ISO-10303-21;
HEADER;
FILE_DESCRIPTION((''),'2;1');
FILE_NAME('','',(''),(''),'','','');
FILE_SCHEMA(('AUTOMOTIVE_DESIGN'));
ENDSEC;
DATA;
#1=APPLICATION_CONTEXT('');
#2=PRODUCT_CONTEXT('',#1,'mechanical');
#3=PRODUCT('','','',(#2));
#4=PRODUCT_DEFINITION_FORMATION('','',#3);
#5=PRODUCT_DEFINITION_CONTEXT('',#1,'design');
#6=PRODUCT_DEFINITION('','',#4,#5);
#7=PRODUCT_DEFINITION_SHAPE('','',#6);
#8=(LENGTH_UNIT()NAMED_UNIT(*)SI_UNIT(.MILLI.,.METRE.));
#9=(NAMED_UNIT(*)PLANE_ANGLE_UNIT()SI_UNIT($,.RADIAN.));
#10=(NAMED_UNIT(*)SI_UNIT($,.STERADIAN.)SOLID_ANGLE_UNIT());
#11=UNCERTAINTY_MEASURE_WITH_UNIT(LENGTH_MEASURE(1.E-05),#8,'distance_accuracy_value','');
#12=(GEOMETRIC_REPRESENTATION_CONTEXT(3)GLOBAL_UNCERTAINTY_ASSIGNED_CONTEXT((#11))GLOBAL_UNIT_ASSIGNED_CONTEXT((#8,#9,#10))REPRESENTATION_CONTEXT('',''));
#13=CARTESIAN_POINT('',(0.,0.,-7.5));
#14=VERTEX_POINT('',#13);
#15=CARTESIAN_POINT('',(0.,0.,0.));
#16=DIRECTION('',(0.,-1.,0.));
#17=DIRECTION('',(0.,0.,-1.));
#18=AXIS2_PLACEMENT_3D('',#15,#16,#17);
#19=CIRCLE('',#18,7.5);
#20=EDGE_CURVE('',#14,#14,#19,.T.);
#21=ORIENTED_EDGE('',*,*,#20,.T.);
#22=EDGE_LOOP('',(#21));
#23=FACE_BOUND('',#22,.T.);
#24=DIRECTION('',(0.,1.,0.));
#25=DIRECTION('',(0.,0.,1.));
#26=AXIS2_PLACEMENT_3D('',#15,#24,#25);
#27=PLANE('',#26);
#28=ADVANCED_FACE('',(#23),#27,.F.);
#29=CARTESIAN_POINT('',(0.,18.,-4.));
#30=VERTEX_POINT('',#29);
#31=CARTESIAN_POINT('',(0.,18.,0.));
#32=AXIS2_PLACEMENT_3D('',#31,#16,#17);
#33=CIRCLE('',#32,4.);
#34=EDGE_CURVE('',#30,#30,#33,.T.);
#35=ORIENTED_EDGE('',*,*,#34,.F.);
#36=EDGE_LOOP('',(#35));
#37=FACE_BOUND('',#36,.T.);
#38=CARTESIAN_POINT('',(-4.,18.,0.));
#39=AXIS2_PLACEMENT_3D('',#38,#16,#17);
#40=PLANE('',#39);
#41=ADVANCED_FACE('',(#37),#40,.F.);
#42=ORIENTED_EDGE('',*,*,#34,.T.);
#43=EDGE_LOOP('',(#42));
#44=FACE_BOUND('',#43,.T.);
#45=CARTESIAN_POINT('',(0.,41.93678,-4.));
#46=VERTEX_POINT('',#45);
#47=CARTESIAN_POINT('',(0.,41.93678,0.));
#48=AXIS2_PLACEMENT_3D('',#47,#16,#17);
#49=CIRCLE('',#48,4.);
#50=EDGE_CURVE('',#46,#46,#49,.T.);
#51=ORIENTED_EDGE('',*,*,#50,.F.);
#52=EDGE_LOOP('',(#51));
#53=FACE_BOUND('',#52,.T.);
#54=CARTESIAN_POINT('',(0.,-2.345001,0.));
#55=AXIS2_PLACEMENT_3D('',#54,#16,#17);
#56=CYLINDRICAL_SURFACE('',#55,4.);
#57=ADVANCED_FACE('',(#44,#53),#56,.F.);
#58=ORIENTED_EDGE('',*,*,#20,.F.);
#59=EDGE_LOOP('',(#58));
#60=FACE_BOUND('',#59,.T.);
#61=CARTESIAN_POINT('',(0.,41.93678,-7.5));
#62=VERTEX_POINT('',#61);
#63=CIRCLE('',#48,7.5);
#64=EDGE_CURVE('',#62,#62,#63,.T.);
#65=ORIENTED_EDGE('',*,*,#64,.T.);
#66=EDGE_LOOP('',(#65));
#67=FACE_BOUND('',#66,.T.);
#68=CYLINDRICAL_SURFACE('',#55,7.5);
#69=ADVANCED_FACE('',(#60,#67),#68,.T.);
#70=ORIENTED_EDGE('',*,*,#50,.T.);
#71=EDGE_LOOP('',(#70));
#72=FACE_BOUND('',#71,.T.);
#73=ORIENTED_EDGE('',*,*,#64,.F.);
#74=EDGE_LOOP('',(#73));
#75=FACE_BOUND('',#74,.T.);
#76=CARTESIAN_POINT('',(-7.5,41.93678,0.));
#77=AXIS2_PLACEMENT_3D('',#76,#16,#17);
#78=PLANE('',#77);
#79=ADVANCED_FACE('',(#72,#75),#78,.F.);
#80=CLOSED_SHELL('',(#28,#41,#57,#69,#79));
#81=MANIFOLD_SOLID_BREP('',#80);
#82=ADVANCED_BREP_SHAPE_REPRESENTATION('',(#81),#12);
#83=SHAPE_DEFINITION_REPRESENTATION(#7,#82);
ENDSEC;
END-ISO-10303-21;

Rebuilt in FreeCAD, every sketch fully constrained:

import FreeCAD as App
import Part
import Sketcher


def add_polygon(sketch, points):
    """Adds a closed chain of lines whose ends are joined by coincident constraints."""
    first, n = sketch.GeometryCount, len(points)
    for a, b in zip(points, points[1:] + points[:1]):
        sketch.addGeometry(Part.LineSegment(App.Vector(*a, 0), App.Vector(*b, 0)), False)
    for i in range(n):
        sketch.addConstraint(Sketcher.Constraint("Coincident", first + i, 2, first + (i + 1) % n, 1))

doc = App.newDocument("Part")
params = doc.addObject("Spreadsheet::Sheet", "Params")
for row, (alias, value) in enumerate([
    ("sketch1_width", "4 mm"),
    ("sketch1_height", "18 mm"),
    ("sketch1_width2", "7.5 mm"),
    ("revolution_angle", "360 deg"),
], start=1):
    params.set(f"A{row}", alias)
    params.set(f"B{row}", "=" + value)
    params.setAlias(f"B{row}", alias)

body = doc.addObject("PartDesign::Body", "Body")

# Sketch on XY plane
sketch1 = doc.addObject("Sketcher::SketchObject", "Sketch")
body.addObject(sketch1)
sketch1.AttachmentSupport = (doc.XY_Plane, [""])
sketch1.MapMode = "FlatFace"
add_polygon(sketch1, [(-7.5, 0), (0, 0), (0, 18), (-4, 18), (-4, 41.93678), (-7.5, 41.93678)])  # lines 0-5
sketch1.addConstraint([
    Sketcher.Constraint("Horizontal", 0),
    Sketcher.Constraint("Vertical", 1),
    Sketcher.Constraint("Horizontal", 2),
    Sketcher.Constraint("Vertical", 3),
    Sketcher.Constraint("Horizontal", 4),
    Sketcher.Constraint("Vertical", 5),
    Sketcher.Constraint("Coincident", 0, 2, -1, 1),
    Sketcher.Constraint("DistanceX", 2, 2, 2, 1, 4.0),
    Sketcher.Constraint("DistanceY", 1, 1, 1, 2, 18.0),
    Sketcher.Constraint("DistanceX", 0, 1, 0, 2, 7.5),
    Sketcher.Constraint("DistanceY", 3, 1, 3, 2, 23.93678),
])
sketch1.setExpression("Constraints[13]", "Params.sketch1_width")
sketch1.setExpression("Constraints[14]", "Params.sketch1_height")
sketch1.setExpression("Constraints[15]", "Params.sketch1_width2")
revolution = doc.addObject("PartDesign::Revolution", "Revolution")
body.addObject(revolution)
revolution.Profile = sketch1
revolution.ReferenceAxis = (sketch1, ["V_Axis"])
revolution.setExpression("Angle", "Params.revolution_angle")

doc.recompute()
